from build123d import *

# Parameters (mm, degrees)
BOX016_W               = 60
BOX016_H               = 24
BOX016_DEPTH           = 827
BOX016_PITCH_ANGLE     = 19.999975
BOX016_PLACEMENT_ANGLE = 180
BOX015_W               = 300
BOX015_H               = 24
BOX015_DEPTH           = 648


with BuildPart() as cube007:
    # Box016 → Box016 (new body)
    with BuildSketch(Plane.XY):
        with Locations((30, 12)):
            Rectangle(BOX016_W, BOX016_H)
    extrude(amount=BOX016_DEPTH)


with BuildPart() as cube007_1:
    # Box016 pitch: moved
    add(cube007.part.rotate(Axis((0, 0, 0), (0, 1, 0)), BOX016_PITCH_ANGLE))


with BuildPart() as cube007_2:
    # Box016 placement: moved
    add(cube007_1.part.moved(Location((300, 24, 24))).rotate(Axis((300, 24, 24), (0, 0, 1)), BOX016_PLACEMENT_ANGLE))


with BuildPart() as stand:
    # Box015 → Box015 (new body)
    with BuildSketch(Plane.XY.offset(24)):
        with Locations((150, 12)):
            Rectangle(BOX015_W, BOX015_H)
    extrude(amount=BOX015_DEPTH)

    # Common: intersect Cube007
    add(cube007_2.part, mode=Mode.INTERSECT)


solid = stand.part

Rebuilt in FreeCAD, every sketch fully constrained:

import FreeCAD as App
import Part
import Sketcher
from FreeCAD import Vector
Q = App.Units.Quantity


def add_polygon(sketch, points):
    """Adds a closed chain of lines whose ends are joined by coincident constraints."""
    first, n = sketch.GeometryCount, len(points)
    for a, b in zip(points, points[1:] + points[:1]):
        sketch.addGeometry(Part.LineSegment(App.Vector(*a, 0), App.Vector(*b, 0)), False)
    for i in range(n):
        sketch.addConstraint(Sketcher.Constraint("Coincident", first + i, 2, first + (i + 1) % n, 1))

doc = App.newDocument("Part")
params = doc.addObject("Spreadsheet::Sheet", "Params")
for row, (alias, value) in enumerate([
    ("sketch1_width", "60 mm"),
    ("sketch1_height", "24 mm"),
    ("pad1_length", "827 mm"),
    ("sketch2_width", "300 mm"),
    ("sketch2_height", "24 mm"),
    ("pad2_length", "648 mm"),
], start=1):
    params.set(f"A{row}", alias)
    params.set(f"B{row}", "=" + value)
    params.setAlias(f"B{row}", alias)

body = doc.addObject("PartDesign::Body", "Body")

sketch1 = body.newObject("Sketcher::SketchObject", "Sketch")
sketch1.AttachmentSupport = (doc.getObject("XY_Plane"), [""])
sketch1.MapMode = "FlatFace"
add_polygon(sketch1, [(0, 24), (0, 0), (60, 0), (60, 24)])
sketch1.addConstraint(Sketcher.Constraint("Vertical", 0))
sketch1.addConstraint(Sketcher.Constraint("Horizontal", 1))
sketch1.addConstraint(Sketcher.Constraint("Vertical", 2))
sketch1.addConstraint(Sketcher.Constraint("Horizontal", 3))
sketch1.addConstraint(Sketcher.Constraint("Coincident", 0, 2, -1, 1))
sketch1.addConstraint(Sketcher.Constraint("DistanceX", 1, 1, 1, 2, Q("60 mm")))
sketch1.addConstraint(Sketcher.Constraint("DistanceY", 0, 2, 0, 1, Q("24 mm")))
sketch1.setExpression("Constraints[9]", "Params.sketch1_width")
sketch1.setExpression("Constraints[10]", "Params.sketch1_height")
pad1 = body.newObject("PartDesign::Pad", "Pad")
pad1.Profile = sketch1
pad1.setExpression("Length", "Params.pad1_length")
body2 = doc.addObject("PartDesign::Body", "Body001")
doc.recompute()

body.Placement = App.Placement(Vector(0, 0, 0), App.Rotation(Vector(0, 1, 0), 19.999975))
boolean = body2.newObject("PartDesign::Boolean", "Boolean")
boolean.Type = "Fuse"
boolean.addObjects([body])
body3 = doc.addObject("PartDesign::Body", "Body002")
doc.recompute()

body2.Placement = App.Placement(Vector(300, 24, 24), App.Rotation(Vector(0, 0, 1), 180))
boolean2 = body3.newObject("PartDesign::Boolean", "Boolean001")
boolean2.Type = "Fuse"
boolean2.addObjects([body2])
body4 = doc.addObject("PartDesign::Body", "Body003")

sketch2 = body4.newObject("Sketcher::SketchObject", "Sketch001")
sketch2.AttachmentSupport = (doc.getObject("XY_Plane003"), [""])
sketch2.MapMode = "FlatFace"
sketch2.AttachmentOffset = App.Placement(Vector(0, 0, 24), App.Rotation())
add_polygon(sketch2, [(0, 24), (0, 0), (300, 0), (300, 24)])
sketch2.addConstraint(Sketcher.Constraint("Vertical", 0))
sketch2.addConstraint(Sketcher.Constraint("Horizontal", 1))
sketch2.addConstraint(Sketcher.Constraint("Vertical", 2))
sketch2.addConstraint(Sketcher.Constraint("Horizontal", 3))
sketch2.addConstraint(Sketcher.Constraint("Coincident", 0, 2, -1, 1))
sketch2.addConstraint(Sketcher.Constraint("DistanceX", 1, 1, 1, 2, Q("300 mm")))
sketch2.addConstraint(Sketcher.Constraint("DistanceY", 0, 2, 0, 1, Q("24 mm")))
sketch2.setExpression("Constraints[9]", "Params.sketch2_width")
sketch2.setExpression("Constraints[10]", "Params.sketch2_height")
pad2 = body4.newObject("PartDesign::Pad", "Pad001")
pad2.Profile = sketch2
pad2.setExpression("Length", "Params.pad2_length")
doc.recompute()

boolean3 = body4.newObject("PartDesign::Boolean", "Boolean002")
boolean3.Type = "Common"
boolean3.addObjects([body3])

doc.recompute()
